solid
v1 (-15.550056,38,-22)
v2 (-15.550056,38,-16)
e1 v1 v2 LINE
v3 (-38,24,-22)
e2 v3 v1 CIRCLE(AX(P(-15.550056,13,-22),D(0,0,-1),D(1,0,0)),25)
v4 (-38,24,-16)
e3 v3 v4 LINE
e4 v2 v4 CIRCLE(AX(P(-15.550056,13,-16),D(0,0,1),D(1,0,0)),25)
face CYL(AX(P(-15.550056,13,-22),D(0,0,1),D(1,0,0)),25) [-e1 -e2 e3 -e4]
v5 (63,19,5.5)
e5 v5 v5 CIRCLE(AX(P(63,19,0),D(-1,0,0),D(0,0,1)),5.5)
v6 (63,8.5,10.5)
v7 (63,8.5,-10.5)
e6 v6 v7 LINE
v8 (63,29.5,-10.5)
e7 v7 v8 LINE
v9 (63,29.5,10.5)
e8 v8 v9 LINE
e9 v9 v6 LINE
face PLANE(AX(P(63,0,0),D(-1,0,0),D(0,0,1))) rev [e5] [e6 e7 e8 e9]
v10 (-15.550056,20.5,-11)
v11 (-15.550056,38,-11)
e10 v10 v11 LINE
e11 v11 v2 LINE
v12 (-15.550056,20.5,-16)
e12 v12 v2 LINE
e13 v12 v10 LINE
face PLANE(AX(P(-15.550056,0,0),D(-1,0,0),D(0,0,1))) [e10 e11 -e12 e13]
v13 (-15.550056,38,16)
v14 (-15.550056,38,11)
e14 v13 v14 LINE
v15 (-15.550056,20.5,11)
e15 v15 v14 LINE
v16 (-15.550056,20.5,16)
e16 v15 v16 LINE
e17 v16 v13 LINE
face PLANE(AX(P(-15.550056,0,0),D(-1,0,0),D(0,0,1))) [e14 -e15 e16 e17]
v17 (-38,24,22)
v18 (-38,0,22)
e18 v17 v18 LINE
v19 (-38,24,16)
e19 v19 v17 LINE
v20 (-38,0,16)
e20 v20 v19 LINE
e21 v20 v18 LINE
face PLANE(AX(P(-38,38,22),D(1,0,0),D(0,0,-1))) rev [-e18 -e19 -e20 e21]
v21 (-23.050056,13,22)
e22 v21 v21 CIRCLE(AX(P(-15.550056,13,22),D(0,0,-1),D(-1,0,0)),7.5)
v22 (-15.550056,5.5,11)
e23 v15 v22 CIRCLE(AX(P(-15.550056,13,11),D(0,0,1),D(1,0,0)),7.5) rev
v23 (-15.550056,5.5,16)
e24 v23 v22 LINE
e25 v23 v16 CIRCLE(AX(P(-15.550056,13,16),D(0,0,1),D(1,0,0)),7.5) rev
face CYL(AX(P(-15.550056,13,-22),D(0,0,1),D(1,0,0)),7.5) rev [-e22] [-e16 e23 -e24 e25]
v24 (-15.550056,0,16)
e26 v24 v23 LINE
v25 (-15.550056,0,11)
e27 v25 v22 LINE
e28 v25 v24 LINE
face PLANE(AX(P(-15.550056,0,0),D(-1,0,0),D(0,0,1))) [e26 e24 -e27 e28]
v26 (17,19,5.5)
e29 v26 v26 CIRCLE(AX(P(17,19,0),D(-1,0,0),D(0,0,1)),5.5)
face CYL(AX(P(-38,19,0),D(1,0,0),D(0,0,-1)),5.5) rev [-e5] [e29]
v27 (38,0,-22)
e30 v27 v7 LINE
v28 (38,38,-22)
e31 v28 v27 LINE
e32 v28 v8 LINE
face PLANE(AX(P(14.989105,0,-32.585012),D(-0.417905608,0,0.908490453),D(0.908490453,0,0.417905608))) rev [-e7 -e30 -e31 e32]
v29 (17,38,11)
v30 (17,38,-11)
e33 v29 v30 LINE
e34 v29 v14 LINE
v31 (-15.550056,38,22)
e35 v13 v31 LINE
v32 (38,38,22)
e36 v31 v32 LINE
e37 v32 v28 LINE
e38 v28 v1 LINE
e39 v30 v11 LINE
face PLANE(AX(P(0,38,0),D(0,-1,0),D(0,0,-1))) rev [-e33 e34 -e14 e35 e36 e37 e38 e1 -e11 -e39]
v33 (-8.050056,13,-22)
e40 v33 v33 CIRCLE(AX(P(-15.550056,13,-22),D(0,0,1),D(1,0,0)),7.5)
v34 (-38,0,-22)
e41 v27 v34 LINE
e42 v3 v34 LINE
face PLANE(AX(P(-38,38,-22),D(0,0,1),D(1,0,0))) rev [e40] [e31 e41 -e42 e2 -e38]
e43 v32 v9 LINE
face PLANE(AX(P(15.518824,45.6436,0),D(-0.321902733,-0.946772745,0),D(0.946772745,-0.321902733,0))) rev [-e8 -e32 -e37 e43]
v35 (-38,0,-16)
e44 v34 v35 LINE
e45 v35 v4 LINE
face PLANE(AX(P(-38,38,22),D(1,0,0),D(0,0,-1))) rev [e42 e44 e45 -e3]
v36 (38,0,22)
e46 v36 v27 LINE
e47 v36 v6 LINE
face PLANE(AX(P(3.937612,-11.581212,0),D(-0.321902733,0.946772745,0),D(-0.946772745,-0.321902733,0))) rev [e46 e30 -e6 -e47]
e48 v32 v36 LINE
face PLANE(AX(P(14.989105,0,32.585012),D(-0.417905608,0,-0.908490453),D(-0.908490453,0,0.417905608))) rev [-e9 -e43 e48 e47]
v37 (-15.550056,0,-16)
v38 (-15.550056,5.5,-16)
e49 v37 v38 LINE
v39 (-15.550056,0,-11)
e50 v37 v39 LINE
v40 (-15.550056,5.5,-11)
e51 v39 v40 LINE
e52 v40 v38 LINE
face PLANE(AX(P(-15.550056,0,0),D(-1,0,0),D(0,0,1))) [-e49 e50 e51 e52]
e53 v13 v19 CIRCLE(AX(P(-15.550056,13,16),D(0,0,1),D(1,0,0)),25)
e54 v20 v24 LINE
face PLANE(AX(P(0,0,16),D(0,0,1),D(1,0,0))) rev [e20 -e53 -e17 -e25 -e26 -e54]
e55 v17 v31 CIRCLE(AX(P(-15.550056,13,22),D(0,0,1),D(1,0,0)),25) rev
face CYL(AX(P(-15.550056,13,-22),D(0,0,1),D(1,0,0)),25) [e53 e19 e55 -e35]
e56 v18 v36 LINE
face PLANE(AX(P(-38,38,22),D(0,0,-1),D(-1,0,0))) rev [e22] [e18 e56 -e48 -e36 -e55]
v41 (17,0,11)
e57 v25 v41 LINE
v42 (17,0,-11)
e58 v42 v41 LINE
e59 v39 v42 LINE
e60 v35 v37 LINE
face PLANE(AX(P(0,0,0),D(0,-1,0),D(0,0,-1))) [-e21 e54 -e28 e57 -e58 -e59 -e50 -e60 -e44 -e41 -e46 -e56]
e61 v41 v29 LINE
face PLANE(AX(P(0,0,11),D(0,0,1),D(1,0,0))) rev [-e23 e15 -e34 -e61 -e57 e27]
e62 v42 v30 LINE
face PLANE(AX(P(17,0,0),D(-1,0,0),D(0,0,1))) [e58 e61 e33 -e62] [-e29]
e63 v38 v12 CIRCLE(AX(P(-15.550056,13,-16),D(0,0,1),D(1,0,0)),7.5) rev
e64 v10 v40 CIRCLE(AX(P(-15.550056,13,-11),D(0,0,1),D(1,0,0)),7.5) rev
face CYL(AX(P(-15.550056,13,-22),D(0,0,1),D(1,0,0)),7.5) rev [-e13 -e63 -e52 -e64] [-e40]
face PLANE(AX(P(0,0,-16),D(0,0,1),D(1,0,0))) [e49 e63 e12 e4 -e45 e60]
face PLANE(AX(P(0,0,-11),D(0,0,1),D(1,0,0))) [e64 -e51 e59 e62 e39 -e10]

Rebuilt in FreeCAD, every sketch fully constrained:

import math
import FreeCAD as App
import Part
import Sketcher
Q = App.Units.Quantity


def add_polygon(sketch, points):
    """Adds a closed chain of lines whose ends are joined by coincident constraints."""
    first, n = sketch.GeometryCount, len(points)
    for a, b in zip(points, points[1:] + points[:1]):
        sketch.addGeometry(Part.LineSegment(App.Vector(*a, 0), App.Vector(*b, 0)), False)
    for i in range(n):
        sketch.addConstraint(Sketcher.Constraint("Coincident", first + i, 2, first + (i + 1) % n, 1))

doc = App.newDocument("Part")
body = doc.addObject("PartDesign::Body", "Body")

# Sketch on XZ plane
sketch1 = body.newObject("Sketcher::SketchObject", "Sketch")
sketch1.AttachmentSupport = (doc.getObject("XZ_Plane"), [""])
sketch1.MapMode = "FlatFace"
add_polygon(sketch1, [(-38, -22), (-38, 22), (38, 22), (38, -22)])  # lines 0-3
sketch1.addConstraint(Sketcher.Constraint("Vertical", 0))
sketch1.addConstraint(Sketcher.Constraint("Horizontal", 1))
sketch1.addConstraint(Sketcher.Constraint("Vertical", 2))
sketch1.addConstraint(Sketcher.Constraint("Horizontal", 3))
sketch1.addConstraint(Sketcher.Constraint("Symmetric", 0, 2, 2, 2, -1, 1))
sketch1.addConstraint(Sketcher.Constraint("DistanceX", 1, 1, 1, 2, Q("76 mm")))
sketch1.addConstraint(Sketcher.Constraint("DistanceY", 0, 1, 0, 2, Q("44 mm")))
pad1 = body.newObject("PartDesign::Pad", "Pad")
pad1.Profile = sketch1
pad1.Length = 38
pad1.Reversed = True

# Sketch on XY plane
sketch2 = body.newObject("Sketcher::SketchObject", "Sketch001")
sketch2.AttachmentSupport = (doc.getObject("XY_Plane"), [""])
sketch2.MapMode = "FlatFace"
sketch2.AttachmentOffset = App.Placement(App.Vector(0, 0, 22), App.Rotation())
sketch2.addGeometry(Part.Circle(App.Vector(-16, 13, 0), App.Vector(0, 0, 1), 8), False)
sketch2.addGeometry(Part.LineSegment(App.Vector(-16, 38, 0), App.Vector(-38, 38, 0)), False)
sketch2.addGeometry(Part.LineSegment(App.Vector(-38, 38, 0), App.Vector(-38, 24, 0)), False)
sketch2.addGeometry(Part.ArcOfCircle(Part.Circle(App.Vector(-16, 13, 0), App.Vector(0, 0, 1), 25), math.radians(90), math.radians(154)), False)
sketch2.addConstraint(Sketcher.Constraint("Coincident", 1, 2, 2, 1))
sketch2.addConstraint(Sketcher.Constraint("Coincident", 2, 2, 3, 2))
sketch2.addConstraint(Sketcher.Constraint("Tangent", 3, 1, 1, 1))
sketch2.addConstraint(Sketcher.Constraint("Horizontal", 1))
sketch2.addConstraint(Sketcher.Constraint("Vertical", 2))
sketch2.addConstraint(Sketcher.Constraint("Coincident", 3, 3, 0, 3))
sketch2.addConstraint(Sketcher.Constraint("Diameter", 0, Q("15 mm")))
sketch2.addConstraint(Sketcher.Constraint("Radius", 3, Q("25 mm")))
sketch2.addConstraint(Sketcher.Constraint("DistanceY", 2, 2, 2, 1, Q("14 mm")))
sketch2.addConstraint(Sketcher.Constraint("DistanceY", -1, 1, 0, 3, Q("13 mm")))
sketch2.addConstraint(Sketcher.Constraint("DistanceX", 1, 2, -1, 1, Q("38 mm")))
pocket1 = body.newObject("PartDesign::Pocket", "Pocket")
pocket1.Profile = sketch2
pocket1.Type = "ThroughAll"
pocket1.Midplane = True

# Sketch on XZ plane
sketch3 = body.newObject("Sketcher::SketchObject", "Sketch002")
sketch3.AttachmentSupport = (doc.getObject("XZ_Plane"), [""])
sketch3.MapMode = "FlatFace"
sketch3.AttachmentOffset = App.Placement(App.Vector(0, 0, -38), App.Rotation())
add_polygon(sketch3, [(-38, -16), (-38, 16), (-16, 16), (-16, 11), (17, 11), (17, -11), (-16, -11), (-16, -16)])  # lines 0-7
sketch3.addConstraint(Sketcher.Constraint("Vertical", 0))
sketch3.addConstraint(Sketcher.Constraint("Horizontal", 1))
sketch3.addConstraint(Sketcher.Constraint("Vertical", 2))
sketch3.addConstraint(Sketcher.Constraint("Horizontal", 3))
sketch3.addConstraint(Sketcher.Constraint("Vertical", 4))
sketch3.addConstraint(Sketcher.Constraint("Horizontal", 5))
sketch3.addConstraint(Sketcher.Constraint("Vertical", 6))
sketch3.addConstraint(Sketcher.Constraint("Horizontal", 7))
sketch3.addConstraint(Sketcher.Constraint("Symmetric", 2, 2, 5, 2, -1))
sketch3.addConstraint(Sketcher.Constraint("Equal", 2, 6))
sketch3.addConstraint(Sketcher.Constraint("DistanceY", 0, 1, 0, 2, Q("32 mm")))
sketch3.addConstraint(Sketcher.Constraint("DistanceY", 2, 2, 2, 1, Q("5 mm")))
sketch3.addConstraint(Sketcher.Constraint("DistanceX", 0, 2, -1, 1, Q("38 mm")))
sketch3.addConstraint(Sketcher.Constraint("DistanceX", -1, 1, 3, 2, Q("17 mm")))
sketch3.addConstraint(Sketcher.Constraint("DistanceX", 1, 1, 1, 2, Q("22.449944 mm")))
pocket2 = body.newObject("PartDesign::Pocket", "Pocket001")
pocket2.Profile = sketch3
pocket2.Type = "ThroughAll"
pocket2.Midplane = True

# Sketch on YZ plane
sketch4 = body.newObject("Sketcher::SketchObject", "Sketch003")
sketch4.AttachmentSupport = (doc.getObject("YZ_Plane"), [""])
sketch4.MapMode = "FlatFace"
sketch4.AttachmentOffset = App.Placement(App.Vector(0, 0, 38), App.Rotation())
add_polygon(sketch4, [(38, 22), (0, 22), (0, -22), (38, -22)])  # lines 0-3
sketch4.addConstraint(Sketcher.Constraint("Horizontal", 0))
sketch4.addConstraint(Sketcher.Constraint("Vertical", 1))
sketch4.addConstraint(Sketcher.Constraint("Horizontal", 2))
sketch4.addConstraint(Sketcher.Constraint("Vertical", 3))
sketch4.addConstraint(Sketcher.Constraint("Symmetric", 0, 2, 1, 2, -1, 1))
sketch4.addConstraint(Sketcher.Constraint("DistanceX", 0, 2, 0, 1, Q("38 mm")))
sketch4.addConstraint(Sketcher.Constraint("DistanceY", 1, 2, 1, 1, Q("44 mm")))

# Sketch on YZ plane
sketch5 = body.newObject("Sketcher::SketchObject", "Sketch004")
sketch5.AttachmentSupport = (doc.getObject("YZ_Plane"), [""])
sketch5.MapMode = "FlatFace"
sketch5.AttachmentOffset = App.Placement(App.Vector(0, 0, 63), App.Rotation())
add_polygon(sketch5, [(30, 10), (8, 10), (8, -10), (30, -10)])  # lines 0-3
sketch5.addConstraint(Sketcher.Constraint("Horizontal", 0))
sketch5.addConstraint(Sketcher.Constraint("Vertical", 1))
sketch5.addConstraint(Sketcher.Constraint("Horizontal", 2))
sketch5.addConstraint(Sketcher.Constraint("Vertical", 3))
sketch5.addConstraint(Sketcher.Constraint("Equal", 2, 1))
sketch5.addConstraint(Sketcher.Constraint("DistanceX", 0, 2, 0, 1, Q("21 mm")))
sketch5.addConstraint(Sketcher.Constraint("DistanceX", -1, 1, 0, 2, Q("8.5 mm")))
sketch5.addConstraint(Sketcher.Constraint("DistanceY", -1, 1, 0, 2, Q("10.5 mm")))

additiveloft = body.newObject("PartDesign::AdditiveLoft", "AdditiveLoft")
additiveloft.Profile = sketch4
additiveloft.Sections = [sketch5]

# Sketch on YZ plane
sketch6 = body.newObject("Sketcher::SketchObject", "Sketch005")
sketch6.AttachmentSupport = (doc.getObject("YZ_Plane"), [""])
sketch6.MapMode = "FlatFace"
sketch6.AttachmentOffset = App.Placement(App.Vector(0, 0, 63), App.Rotation())
sketch6.addGeometry(Part.Circle(App.Vector(19, 0, 0), App.Vector(0, 0, 1), 6), False)
sketch6.addConstraint(Sketcher.Constraint("PointOnObject", 0, 3, -1))
sketch6.addConstraint(Sketcher.Constraint("Diameter", 0, Q("11 mm")))
sketch6.addConstraint(Sketcher.Constraint("DistanceX", -1, 1, 0, 3, Q("19 mm")))
pocket3 = body.newObject("PartDesign::Pocket", "Pocket002")
pocket3.Profile = sketch6
pocket3.Type = "ThroughAll"
pocket3.Midplane = True

doc.recompute()
